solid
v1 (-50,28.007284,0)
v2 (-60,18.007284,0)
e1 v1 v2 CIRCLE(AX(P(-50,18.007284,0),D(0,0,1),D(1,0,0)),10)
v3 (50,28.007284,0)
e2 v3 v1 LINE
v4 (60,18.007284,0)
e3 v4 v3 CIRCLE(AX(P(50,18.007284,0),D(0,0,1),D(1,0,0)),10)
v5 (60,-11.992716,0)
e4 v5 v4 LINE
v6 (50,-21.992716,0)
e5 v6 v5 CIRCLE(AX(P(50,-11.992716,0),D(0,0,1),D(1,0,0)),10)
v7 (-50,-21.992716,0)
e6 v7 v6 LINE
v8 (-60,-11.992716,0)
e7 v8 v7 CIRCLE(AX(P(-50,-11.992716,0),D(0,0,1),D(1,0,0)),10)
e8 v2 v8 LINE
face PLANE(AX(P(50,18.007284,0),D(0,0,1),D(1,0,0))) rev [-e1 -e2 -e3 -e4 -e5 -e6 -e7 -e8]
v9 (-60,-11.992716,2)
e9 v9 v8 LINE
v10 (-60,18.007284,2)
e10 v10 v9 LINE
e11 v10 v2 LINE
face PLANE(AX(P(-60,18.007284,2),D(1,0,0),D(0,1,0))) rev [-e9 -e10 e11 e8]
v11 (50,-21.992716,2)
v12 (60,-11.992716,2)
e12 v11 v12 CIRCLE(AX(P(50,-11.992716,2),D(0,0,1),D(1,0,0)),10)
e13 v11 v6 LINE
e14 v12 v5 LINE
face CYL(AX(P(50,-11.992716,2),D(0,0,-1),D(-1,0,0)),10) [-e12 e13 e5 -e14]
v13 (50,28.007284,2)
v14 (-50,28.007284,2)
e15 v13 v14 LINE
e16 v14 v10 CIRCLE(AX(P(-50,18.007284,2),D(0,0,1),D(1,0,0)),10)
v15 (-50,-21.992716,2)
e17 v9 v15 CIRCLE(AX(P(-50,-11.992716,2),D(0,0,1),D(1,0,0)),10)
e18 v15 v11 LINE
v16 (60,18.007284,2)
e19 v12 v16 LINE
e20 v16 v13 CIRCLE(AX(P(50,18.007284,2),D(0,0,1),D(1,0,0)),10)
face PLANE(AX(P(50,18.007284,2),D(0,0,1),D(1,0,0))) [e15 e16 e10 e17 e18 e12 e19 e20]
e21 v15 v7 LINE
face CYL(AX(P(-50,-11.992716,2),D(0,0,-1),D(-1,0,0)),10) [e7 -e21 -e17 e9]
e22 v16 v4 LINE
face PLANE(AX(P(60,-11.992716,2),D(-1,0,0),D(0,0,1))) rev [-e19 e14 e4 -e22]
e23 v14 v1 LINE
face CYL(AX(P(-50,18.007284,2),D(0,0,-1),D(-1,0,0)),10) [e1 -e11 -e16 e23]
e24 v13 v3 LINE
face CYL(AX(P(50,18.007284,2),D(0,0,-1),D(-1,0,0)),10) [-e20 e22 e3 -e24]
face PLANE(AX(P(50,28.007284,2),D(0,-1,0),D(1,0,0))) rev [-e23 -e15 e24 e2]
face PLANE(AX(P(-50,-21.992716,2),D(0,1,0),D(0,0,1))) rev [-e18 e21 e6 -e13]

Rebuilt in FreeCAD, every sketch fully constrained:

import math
import FreeCAD as App
import Part
import Sketcher

V = App.Vector

doc = App.newDocument("Part")
body = doc.addObject("PartDesign::Body", "Body")

# Sketch on XY plane
sketch1 = body.newObject("Sketcher::SketchObject", "Sketch")
sketch1.AttachmentSupport = (doc.getObject("XY_Plane"), [""])
sketch1.MapMode = "FlatFace"
sketch1.addGeometry([
    Part.LineSegment(V(50, 28, 0), V(-50, 28, 0)),  # 0
    Part.ArcOfCircle(Part.Circle(V(-50, 18, 0), V(0, 0, 1), 10), math.radians(90), math.radians(180)),  # 1
    Part.LineSegment(V(-60, 18, 0), V(-60, -12, 0)),  # 2
    Part.ArcOfCircle(Part.Circle(V(-50, -12, 0), V(0, 0, 1), 10), math.radians(-180), math.radians(-90)),  # 3
    Part.LineSegment(V(-50, -22, 0), V(50, -22, 0)),  # 4
    Part.ArcOfCircle(Part.Circle(V(50, -12, 0), V(0, 0, 1), 10), math.radians(-90), math.radians(0)),  # 5
    Part.LineSegment(V(60, -12, 0), V(60, 18, 0)),  # 6
    Part.ArcOfCircle(Part.Circle(V(50, 18, 0), V(0, 0, 1), 10), math.radians(0), math.radians(90)),  # 7
], False)
sketch1.addConstraint([
    Sketcher.Constraint("Tangent", 0, 2, 1, 1),
    Sketcher.Constraint("Tangent", 1, 2, 2, 1),
    Sketcher.Constraint("Tangent", 2, 2, 3, 1),
    Sketcher.Constraint("Tangent", 3, 2, 4, 1),
    Sketcher.Constraint("Tangent", 4, 2, 5, 1),
    Sketcher.Constraint("Tangent", 5, 2, 6, 1),
    Sketcher.Constraint("Tangent", 6, 2, 7, 1),
    Sketcher.Constraint("Tangent", 7, 2, 0, 1),
    Sketcher.Constraint("Horizontal", 0),
    Sketcher.Constraint("Vertical", 2),
    Sketcher.Constraint("Horizontal", 4),
    Sketcher.Constraint("Vertical", 6),
    Sketcher.Constraint("Equal", 1, 3),
    Sketcher.Constraint("Equal", 3, 5),
    Sketcher.Constraint("Equal", 5, 7),
    Sketcher.Constraint("Radius", 1, 10.0),
    Sketcher.Constraint("DistanceX", 0, 2, 0, 1, 100.0),
    Sketcher.Constraint("DistanceY", 2, 2, 2, 1, 30.0),
    Sketcher.Constraint("DistanceX", 1, 3, -1, 1, 50.0),
    Sketcher.Constraint("DistanceY", -1, 1, 1, 3, 18.007284),
])
pad1 = body.newObject("PartDesign::Pad", "Pad")
pad1.Profile = sketch1
pad1.Length = 2

doc.recompute()
